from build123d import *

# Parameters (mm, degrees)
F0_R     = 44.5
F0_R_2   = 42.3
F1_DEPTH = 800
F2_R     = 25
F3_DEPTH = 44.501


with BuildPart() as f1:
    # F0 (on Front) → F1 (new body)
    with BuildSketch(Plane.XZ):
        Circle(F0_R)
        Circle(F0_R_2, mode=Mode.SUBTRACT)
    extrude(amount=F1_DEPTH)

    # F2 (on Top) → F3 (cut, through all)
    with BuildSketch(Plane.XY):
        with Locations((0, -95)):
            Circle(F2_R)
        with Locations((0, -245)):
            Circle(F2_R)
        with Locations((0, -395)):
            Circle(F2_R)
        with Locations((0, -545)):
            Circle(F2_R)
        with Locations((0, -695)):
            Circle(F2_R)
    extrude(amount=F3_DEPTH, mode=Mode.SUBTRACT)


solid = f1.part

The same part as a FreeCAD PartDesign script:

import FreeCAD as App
import Part
import Sketcher
Q = App.Units.Quantity

doc = App.newDocument("Part")
body = doc.addObject("PartDesign::Body", "Body")

# Sketch on XZ plane
sketch1 = body.newObject("Sketcher::SketchObject", "Sketch")
sketch1.AttachmentSupport = (doc.getObject("XZ_Plane"), [""])
sketch1.MapMode = "FlatFace"
sketch1.addGeometry(Part.Circle(App.Vector(0, 0, 0), App.Vector(0, 0, 1), 44.5), False)
sketch1.addGeometry(Part.Circle(App.Vector(0, 0, 0), App.Vector(0, 0, 1), 42.3), False)
sketch1.addConstraint(Sketcher.Constraint("Coincident", 0, 3, -1, 1))
sketch1.addConstraint(Sketcher.Constraint("Coincident", 1, 3, -1, 1))
sketch1.addConstraint(Sketcher.Constraint("Diameter", 0, Q("89 mm")))
sketch1.addConstraint(Sketcher.Constraint("Diameter", 1, Q("84.6 mm")))
pad1 = body.newObject("PartDesign::Pad", "Pad")
pad1.Profile = sketch1
pad1.Length = 800

# Sketch on XY plane
sketch2 = body.newObject("Sketcher::SketchObject", "Sketch001")
sketch2.AttachmentSupport = (doc.getObject("XY_Plane"), [""])
sketch2.MapMode = "FlatFace"
sketch2.addGeometry(Part.Circle(App.Vector(0, -95, 0), App.Vector(0, 0, 1), 25), False)
sketch2.addGeometry(Part.Circle(App.Vector(0, -245, 0), App.Vector(0, 0, 1), 25), False)
sketch2.addGeometry(Part.Circle(App.Vector(0, -395, 0), App.Vector(0, 0, 1), 25), False)
sketch2.addGeometry(Part.Circle(App.Vector(0, -545, 0), App.Vector(0, 0, 1), 25), False)
sketch2.addGeometry(Part.Circle(App.Vector(0, -695, 0), App.Vector(0, 0, 1), 25), False)
sketch2.addConstraint(Sketcher.Constraint("Equal", 0, 1))
sketch2.addConstraint(Sketcher.Constraint("Equal", 1, 2))
sketch2.addConstraint(Sketcher.Constraint("Equal", 2, 3))
sketch2.addConstraint(Sketcher.Constraint("Equal", 3, 4))
sketch2.addConstraint(Sketcher.Constraint("PointOnObject", 0, 3, -2))
sketch2.addConstraint(Sketcher.Constraint("PointOnObject", 1, 3, -2))
sketch2.addConstraint(Sketcher.Constraint("PointOnObject", 2, 3, -2))
sketch2.addConstraint(Sketcher.Constraint("PointOnObject", 3, 3, -2))
sketch2.addConstraint(Sketcher.Constraint("PointOnObject", 4, 3, -2))
sketch2.addConstraint(Sketcher.Constraint("Diameter", 0, Q("50 mm")))
sketch2.addConstraint(Sketcher.Constraint("DistanceY", 0, 3, -1, 1, Q("95 mm")))
sketch2.addConstraint(Sketcher.Constraint("DistanceY", 1, 3, -1, 1, Q("245 mm")))
sketch2.addConstraint(Sketcher.Constraint("DistanceY", 2, 3, -1, 1, Q("395 mm")))
sketch2.addConstraint(Sketcher.Constraint("DistanceY", 3, 3, -1, 1, Q("545 mm")))
sketch2.addConstraint(Sketcher.Constraint("DistanceY", 4, 3, -1, 1, Q("695 mm")))
pocket1 = body.newObject("PartDesign::Pocket", "Pocket")
pocket1.Profile = sketch2
pocket1.Type = "ThroughAll"
pocket1.Reversed = True

doc.recompute()
